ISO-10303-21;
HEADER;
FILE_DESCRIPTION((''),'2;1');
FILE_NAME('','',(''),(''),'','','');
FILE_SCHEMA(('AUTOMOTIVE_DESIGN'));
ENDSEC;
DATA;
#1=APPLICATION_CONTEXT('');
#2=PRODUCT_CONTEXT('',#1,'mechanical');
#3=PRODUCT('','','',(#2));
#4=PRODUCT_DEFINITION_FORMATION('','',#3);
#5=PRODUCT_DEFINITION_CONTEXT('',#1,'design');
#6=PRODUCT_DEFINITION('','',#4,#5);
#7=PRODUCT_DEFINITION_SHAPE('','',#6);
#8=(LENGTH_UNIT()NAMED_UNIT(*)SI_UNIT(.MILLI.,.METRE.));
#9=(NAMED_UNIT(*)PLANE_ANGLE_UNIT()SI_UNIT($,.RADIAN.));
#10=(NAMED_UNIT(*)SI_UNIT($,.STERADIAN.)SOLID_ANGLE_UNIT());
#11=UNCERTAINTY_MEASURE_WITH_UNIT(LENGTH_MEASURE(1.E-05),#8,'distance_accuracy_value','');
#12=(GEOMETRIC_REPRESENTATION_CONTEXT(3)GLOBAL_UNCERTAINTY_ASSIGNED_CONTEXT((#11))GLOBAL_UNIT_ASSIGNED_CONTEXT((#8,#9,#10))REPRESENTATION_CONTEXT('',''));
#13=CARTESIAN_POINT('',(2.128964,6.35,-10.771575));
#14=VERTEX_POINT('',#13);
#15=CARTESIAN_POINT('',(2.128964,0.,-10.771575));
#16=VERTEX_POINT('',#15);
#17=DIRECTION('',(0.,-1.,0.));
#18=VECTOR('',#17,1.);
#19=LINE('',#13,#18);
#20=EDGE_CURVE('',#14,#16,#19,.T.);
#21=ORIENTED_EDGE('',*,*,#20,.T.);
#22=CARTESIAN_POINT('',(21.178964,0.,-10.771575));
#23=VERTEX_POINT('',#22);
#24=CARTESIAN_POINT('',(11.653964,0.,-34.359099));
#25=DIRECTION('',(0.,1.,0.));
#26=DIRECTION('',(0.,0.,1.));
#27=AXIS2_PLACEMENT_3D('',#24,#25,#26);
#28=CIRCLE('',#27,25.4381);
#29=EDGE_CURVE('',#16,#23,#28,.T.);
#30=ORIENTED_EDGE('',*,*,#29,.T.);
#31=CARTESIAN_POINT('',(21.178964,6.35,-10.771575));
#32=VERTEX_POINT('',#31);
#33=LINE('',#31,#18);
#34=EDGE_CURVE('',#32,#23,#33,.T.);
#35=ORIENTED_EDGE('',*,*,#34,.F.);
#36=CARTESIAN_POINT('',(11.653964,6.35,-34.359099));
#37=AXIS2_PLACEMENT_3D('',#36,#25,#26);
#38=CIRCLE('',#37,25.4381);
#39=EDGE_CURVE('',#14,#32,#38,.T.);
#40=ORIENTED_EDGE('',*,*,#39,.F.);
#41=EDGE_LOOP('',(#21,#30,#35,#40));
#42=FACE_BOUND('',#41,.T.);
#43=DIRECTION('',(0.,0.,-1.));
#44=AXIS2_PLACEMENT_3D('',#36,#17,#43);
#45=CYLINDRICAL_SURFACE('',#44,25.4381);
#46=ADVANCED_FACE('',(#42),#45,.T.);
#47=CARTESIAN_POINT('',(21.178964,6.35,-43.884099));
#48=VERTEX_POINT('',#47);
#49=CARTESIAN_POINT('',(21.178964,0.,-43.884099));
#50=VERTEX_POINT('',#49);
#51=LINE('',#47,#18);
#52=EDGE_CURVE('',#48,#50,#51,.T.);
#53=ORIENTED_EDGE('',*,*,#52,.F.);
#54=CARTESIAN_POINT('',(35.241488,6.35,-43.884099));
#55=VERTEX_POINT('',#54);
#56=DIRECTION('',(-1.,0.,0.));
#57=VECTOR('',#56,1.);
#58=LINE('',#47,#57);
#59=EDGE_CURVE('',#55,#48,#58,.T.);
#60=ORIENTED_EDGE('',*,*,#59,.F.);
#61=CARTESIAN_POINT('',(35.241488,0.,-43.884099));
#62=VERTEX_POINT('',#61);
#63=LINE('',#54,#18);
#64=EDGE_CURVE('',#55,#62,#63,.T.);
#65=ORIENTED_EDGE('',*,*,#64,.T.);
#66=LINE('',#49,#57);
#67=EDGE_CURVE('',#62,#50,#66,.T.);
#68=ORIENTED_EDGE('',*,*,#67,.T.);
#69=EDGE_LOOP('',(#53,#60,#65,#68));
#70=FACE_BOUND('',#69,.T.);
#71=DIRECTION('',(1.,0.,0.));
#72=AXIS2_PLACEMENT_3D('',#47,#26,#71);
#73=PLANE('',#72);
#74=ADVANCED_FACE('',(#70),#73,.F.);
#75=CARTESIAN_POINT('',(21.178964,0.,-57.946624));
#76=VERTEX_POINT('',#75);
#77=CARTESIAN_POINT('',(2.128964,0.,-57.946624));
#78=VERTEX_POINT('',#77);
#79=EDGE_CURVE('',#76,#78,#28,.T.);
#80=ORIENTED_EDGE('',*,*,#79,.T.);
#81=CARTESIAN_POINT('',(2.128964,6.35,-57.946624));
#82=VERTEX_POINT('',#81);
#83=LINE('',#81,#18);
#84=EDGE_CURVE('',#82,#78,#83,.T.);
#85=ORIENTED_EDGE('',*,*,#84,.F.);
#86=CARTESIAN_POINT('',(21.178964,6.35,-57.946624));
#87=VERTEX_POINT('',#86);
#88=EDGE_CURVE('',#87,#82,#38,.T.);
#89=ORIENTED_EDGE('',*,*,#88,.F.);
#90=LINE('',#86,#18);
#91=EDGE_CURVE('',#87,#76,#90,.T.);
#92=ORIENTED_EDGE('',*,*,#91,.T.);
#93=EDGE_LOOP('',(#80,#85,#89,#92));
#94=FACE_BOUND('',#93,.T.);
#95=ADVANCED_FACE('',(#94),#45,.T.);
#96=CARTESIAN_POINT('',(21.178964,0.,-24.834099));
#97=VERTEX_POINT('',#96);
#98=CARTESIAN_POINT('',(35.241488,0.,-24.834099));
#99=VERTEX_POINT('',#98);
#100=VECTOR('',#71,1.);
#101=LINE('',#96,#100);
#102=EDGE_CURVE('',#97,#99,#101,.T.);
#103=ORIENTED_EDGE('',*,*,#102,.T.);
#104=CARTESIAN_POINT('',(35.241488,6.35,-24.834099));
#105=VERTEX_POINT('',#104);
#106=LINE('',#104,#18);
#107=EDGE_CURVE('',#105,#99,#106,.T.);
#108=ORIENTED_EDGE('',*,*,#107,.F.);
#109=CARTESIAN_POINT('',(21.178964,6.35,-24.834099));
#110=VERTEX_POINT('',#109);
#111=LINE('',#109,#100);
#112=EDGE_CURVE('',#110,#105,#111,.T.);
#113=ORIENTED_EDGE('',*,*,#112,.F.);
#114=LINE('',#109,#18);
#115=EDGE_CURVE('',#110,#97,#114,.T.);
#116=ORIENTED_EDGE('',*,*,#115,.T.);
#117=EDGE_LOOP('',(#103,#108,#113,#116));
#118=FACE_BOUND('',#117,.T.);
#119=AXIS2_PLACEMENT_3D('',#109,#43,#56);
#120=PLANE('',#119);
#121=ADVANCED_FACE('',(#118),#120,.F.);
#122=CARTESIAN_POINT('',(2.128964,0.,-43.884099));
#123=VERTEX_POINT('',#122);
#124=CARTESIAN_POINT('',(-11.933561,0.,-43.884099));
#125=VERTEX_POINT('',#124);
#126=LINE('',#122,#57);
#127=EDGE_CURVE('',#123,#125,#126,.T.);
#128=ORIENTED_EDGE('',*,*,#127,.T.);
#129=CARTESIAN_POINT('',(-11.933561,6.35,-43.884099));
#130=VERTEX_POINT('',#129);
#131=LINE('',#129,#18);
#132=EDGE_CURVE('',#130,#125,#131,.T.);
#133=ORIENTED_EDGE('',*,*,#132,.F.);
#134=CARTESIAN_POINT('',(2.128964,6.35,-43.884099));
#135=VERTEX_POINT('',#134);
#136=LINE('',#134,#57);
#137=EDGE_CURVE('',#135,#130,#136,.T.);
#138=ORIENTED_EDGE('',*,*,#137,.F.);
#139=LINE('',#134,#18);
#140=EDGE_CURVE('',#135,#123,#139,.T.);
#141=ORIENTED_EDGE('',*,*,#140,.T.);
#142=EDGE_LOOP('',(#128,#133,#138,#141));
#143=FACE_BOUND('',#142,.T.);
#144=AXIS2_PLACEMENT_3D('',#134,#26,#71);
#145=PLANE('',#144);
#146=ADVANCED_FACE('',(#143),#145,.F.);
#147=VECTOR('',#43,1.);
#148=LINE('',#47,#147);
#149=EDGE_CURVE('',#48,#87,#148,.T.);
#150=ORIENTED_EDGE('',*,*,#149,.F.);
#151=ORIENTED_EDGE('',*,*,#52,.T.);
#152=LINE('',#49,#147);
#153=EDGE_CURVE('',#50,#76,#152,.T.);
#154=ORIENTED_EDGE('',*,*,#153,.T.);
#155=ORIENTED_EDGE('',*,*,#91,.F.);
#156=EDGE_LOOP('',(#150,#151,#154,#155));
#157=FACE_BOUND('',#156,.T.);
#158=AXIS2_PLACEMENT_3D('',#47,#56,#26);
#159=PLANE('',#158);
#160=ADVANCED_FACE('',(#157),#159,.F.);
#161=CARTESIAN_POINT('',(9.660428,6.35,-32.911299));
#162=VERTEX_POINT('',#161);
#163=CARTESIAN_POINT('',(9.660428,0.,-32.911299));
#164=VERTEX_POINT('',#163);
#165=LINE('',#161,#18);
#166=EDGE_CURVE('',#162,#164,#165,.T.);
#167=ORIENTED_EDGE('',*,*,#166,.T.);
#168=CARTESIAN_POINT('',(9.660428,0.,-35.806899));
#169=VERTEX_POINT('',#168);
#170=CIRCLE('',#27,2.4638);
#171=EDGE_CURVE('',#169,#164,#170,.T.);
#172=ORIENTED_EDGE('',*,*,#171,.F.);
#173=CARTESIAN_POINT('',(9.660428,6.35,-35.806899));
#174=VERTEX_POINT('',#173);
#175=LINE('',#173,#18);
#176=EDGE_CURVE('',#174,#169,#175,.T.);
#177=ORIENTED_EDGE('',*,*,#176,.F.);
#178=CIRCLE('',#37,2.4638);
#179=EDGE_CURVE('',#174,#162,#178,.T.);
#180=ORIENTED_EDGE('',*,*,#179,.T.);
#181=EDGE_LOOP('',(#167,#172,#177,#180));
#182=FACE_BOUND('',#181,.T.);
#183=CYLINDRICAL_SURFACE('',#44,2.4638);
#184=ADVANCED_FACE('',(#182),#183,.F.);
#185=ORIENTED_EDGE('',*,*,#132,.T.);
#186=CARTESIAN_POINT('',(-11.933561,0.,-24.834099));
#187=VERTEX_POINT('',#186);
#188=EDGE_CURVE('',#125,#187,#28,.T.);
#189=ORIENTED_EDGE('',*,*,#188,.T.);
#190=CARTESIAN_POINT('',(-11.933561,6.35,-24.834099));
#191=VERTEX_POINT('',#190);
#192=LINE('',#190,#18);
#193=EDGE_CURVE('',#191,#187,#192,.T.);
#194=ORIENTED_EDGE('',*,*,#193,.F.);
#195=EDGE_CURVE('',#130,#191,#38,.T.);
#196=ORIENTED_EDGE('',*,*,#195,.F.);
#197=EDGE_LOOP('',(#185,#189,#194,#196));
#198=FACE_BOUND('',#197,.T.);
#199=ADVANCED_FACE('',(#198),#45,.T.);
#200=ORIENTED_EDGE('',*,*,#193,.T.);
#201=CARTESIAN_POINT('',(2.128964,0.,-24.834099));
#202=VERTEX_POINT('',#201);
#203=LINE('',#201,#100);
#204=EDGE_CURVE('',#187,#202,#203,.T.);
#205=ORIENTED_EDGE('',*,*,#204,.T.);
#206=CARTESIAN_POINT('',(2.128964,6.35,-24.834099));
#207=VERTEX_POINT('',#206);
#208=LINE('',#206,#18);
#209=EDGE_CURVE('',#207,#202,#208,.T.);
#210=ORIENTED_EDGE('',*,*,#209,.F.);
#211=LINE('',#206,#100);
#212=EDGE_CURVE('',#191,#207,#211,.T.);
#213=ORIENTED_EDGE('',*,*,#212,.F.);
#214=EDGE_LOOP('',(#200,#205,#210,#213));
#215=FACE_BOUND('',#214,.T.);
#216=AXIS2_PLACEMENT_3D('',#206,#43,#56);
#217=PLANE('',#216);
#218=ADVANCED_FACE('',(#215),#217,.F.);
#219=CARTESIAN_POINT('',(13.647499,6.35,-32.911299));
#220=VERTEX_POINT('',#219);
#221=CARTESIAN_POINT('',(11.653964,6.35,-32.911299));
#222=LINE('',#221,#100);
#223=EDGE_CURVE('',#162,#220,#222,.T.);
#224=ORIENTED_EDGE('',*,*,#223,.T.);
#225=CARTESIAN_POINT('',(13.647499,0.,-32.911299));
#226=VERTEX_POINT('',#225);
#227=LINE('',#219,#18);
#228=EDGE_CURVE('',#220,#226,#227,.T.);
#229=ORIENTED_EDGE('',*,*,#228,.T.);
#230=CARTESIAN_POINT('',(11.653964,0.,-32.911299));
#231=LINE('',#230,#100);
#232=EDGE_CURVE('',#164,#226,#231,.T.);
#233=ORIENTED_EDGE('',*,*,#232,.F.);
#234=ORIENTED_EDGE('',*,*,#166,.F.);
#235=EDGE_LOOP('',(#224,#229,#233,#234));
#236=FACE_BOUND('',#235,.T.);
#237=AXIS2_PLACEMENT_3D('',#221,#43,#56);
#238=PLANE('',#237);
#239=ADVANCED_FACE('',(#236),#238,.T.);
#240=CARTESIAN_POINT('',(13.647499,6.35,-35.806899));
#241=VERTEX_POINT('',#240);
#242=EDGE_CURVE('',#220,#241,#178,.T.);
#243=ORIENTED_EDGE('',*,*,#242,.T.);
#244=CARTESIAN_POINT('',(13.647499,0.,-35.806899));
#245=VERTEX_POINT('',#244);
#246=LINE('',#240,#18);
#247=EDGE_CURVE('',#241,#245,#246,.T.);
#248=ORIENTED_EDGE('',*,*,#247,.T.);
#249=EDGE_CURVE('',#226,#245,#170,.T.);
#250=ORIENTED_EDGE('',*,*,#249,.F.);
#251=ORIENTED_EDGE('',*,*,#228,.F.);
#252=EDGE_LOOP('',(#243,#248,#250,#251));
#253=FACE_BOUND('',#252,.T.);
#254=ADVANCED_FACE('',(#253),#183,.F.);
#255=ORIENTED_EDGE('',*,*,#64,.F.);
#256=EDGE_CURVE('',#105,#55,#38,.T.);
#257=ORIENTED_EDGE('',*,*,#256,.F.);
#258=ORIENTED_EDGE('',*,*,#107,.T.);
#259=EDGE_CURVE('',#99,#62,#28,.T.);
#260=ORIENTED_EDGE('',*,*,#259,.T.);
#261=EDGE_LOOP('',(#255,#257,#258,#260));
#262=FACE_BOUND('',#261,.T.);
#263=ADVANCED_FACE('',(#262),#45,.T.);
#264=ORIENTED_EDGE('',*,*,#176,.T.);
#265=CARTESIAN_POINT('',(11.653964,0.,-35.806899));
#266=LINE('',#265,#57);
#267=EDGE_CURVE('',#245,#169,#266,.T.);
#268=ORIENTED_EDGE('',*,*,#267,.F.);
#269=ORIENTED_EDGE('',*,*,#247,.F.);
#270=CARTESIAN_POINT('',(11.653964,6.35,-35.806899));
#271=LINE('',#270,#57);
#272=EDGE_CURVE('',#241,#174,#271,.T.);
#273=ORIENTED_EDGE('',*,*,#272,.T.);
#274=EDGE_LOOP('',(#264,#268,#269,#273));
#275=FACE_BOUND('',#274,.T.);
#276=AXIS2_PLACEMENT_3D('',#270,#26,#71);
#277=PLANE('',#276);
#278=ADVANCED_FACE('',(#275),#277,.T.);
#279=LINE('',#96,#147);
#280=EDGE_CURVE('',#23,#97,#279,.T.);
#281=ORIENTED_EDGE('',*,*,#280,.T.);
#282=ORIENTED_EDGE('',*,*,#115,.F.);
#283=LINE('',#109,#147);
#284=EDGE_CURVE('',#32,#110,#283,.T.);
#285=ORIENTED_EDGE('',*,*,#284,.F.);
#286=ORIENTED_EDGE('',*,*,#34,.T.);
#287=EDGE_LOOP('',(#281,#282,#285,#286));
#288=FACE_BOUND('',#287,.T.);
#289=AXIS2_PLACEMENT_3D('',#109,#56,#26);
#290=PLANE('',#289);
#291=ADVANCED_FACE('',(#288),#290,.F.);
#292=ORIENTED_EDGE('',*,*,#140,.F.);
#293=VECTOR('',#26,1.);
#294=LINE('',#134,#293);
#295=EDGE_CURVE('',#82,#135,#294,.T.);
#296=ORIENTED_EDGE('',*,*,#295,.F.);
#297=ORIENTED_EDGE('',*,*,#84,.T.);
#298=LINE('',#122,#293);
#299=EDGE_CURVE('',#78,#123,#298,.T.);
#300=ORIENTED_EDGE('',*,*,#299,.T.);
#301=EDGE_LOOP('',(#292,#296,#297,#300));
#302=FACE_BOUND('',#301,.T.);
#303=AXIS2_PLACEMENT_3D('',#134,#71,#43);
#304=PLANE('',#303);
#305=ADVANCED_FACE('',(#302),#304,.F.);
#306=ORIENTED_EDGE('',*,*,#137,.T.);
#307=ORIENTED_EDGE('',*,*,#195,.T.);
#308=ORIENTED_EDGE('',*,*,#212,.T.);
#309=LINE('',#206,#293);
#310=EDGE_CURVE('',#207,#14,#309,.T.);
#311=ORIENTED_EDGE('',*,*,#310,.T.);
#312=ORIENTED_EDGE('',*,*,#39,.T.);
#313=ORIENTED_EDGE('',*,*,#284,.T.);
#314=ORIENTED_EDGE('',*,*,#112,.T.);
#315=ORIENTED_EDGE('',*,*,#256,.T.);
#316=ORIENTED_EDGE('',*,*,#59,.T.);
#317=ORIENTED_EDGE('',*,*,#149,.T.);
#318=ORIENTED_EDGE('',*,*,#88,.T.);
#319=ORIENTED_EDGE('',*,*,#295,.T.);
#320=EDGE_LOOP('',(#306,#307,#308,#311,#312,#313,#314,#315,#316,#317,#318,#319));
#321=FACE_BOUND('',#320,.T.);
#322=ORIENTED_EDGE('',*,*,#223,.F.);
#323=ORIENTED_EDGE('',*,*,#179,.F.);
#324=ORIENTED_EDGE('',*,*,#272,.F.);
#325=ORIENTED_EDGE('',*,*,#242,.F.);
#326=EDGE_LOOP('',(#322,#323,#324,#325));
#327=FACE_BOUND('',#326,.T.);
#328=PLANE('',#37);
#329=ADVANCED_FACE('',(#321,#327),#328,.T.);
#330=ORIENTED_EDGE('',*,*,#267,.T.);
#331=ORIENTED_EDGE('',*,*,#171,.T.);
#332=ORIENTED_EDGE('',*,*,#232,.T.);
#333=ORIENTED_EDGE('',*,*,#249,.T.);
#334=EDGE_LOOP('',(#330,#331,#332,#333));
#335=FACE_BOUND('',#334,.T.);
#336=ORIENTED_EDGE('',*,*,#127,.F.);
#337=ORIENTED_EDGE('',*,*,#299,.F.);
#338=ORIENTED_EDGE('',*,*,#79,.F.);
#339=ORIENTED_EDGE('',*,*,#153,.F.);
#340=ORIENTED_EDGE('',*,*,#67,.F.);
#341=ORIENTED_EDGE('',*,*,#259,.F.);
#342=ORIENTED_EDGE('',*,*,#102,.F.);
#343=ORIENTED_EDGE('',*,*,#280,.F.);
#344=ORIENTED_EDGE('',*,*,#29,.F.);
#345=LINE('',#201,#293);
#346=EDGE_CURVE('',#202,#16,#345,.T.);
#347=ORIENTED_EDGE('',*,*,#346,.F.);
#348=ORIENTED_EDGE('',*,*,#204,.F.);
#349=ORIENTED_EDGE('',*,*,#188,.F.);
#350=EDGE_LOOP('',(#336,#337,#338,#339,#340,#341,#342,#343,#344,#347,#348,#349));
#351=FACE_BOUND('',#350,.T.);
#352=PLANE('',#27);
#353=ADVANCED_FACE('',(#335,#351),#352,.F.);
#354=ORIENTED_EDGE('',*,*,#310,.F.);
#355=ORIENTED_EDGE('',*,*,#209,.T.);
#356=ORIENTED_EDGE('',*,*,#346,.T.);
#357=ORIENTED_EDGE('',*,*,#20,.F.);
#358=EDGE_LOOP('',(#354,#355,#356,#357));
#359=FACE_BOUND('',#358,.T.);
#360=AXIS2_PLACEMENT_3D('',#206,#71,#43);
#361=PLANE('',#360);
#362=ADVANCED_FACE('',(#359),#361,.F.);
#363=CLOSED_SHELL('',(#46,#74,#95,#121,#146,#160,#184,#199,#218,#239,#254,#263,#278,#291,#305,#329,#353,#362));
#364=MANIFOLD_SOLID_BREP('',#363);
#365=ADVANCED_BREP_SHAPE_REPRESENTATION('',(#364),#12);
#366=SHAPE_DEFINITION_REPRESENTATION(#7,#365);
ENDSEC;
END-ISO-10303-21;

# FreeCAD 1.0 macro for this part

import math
import FreeCAD as App
import Part
import Sketcher
Q = App.Units.Quantity

doc = App.newDocument("Part")
body = doc.addObject("PartDesign::Body", "Body")

sketch1 = body.newObject("Sketcher::SketchObject", "Sketch")
sketch1.AttachmentSupport = (doc.getObject("XZ_Plane"), [""])
sketch1.MapMode = "FlatFace"
sketch1.addGeometry([
    Part.LineSegment(App.Vector(2.1, -57.9, 0), App.Vector(2.1, -43.9, 0)),
    Part.LineSegment(App.Vector(2.1, -43.9, 0), App.Vector(-11.9, -43.9, 0)),
    Part.ArcOfCircle(Part.Circle(App.Vector(11.7, -34.4, 0), App.Vector(0, 0, 1), 25.4), math.radians(158), math.radians(202)),
    Part.LineSegment(App.Vector(-11.9, -24.8, 0), App.Vector(2.1, -24.8, 0)),
    Part.LineSegment(App.Vector(2.1, -24.8, 0), App.Vector(2.1, -10.8, 0)),
    Part.ArcOfCircle(Part.Circle(App.Vector(11.7, -34.4, 0), App.Vector(0, 0, 1), 25.4), math.radians(68), math.radians(112)),
    Part.LineSegment(App.Vector(21.2, -10.8, 0), App.Vector(21.2, -24.8, 0)),
    Part.LineSegment(App.Vector(21.2, -24.8, 0), App.Vector(35.2, -24.8, 0)),
    Part.ArcOfCircle(Part.Circle(App.Vector(11.7, -34.4, 0), App.Vector(0, 0, 1), 25.4), math.radians(-22), math.radians(22)),
    Part.LineSegment(App.Vector(35.2, -43.9, 0), App.Vector(21.2, -43.9, 0)),
    Part.LineSegment(App.Vector(21.2, -43.9, 0), App.Vector(21.2, -57.9, 0)),
    Part.ArcOfCircle(Part.Circle(App.Vector(11.7, -34.4, 0), App.Vector(0, 0, 1), 25.4), math.radians(-112), math.radians(-68)),
    Part.ArcOfCircle(Part.Circle(App.Vector(11.7, -34.4, 0), App.Vector(0, 0, 1), 2.5), math.radians(-36), math.radians(36)),
    Part.LineSegment(App.Vector(13.6, -32.9, 0), App.Vector(9.7, -32.9, 0)),
    Part.ArcOfCircle(Part.Circle(App.Vector(11.7, -34.4, 0), App.Vector(0, 0, 1), 2.5), math.radians(144), math.radians(216)),
    Part.LineSegment(App.Vector(9.7, -35.8, 0), App.Vector(13.6, -35.8, 0)),
], False)
sketch1.addConstraint([
    Sketcher.Constraint("Coincident", 0, 2, 1, 1),
    Sketcher.Constraint("Coincident", 1, 2, 2, 2),
    Sketcher.Constraint("Coincident", 2, 1, 3, 1),
    Sketcher.Constraint("Coincident", 3, 2, 4, 1),
    Sketcher.Constraint("Coincident", 4, 2, 5, 2),
    Sketcher.Constraint("Coincident", 5, 1, 6, 1),
    Sketcher.Constraint("Coincident", 6, 2, 7, 1),
    Sketcher.Constraint("Coincident", 7, 2, 8, 2),
    Sketcher.Constraint("Coincident", 8, 1, 9, 1),
    Sketcher.Constraint("Coincident", 9, 2, 10, 1),
    Sketcher.Constraint("Coincident", 10, 2, 11, 2),
    Sketcher.Constraint("Coincident", 11, 1, 0, 1),
    Sketcher.Constraint("Coincident", 12, 2, 13, 1),
    Sketcher.Constraint("Coincident", 13, 2, 14, 1),
    Sketcher.Constraint("Coincident", 14, 2, 15, 1),
    Sketcher.Constraint("Coincident", 15, 2, 12, 1),
    Sketcher.Constraint("Vertical", 0),
    Sketcher.Constraint("Horizontal", 1),
    Sketcher.Constraint("Horizontal", 3),
    Sketcher.Constraint("Vertical", 4),
    Sketcher.Constraint("Vertical", 6),
    Sketcher.Constraint("Horizontal", 7),
    Sketcher.Constraint("Horizontal", 9),
    Sketcher.Constraint("Vertical", 10),
    Sketcher.Constraint("Horizontal", 13),
    Sketcher.Constraint("Horizontal", 15),
    Sketcher.Constraint("Coincident", 5, 3, 2, 3),
    Sketcher.Constraint("Coincident", 8, 3, 2, 3),
    Sketcher.Constraint("Coincident", 11, 3, 2, 3),
    Sketcher.Constraint("Coincident", 12, 3, 2, 3),
    Sketcher.Constraint("Coincident", 14, 3, 2, 3),
    Sketcher.Constraint("Equal", 2, 5),
    Sketcher.Constraint("Equal", 5, 8),
    Sketcher.Constraint("Equal", 8, 11),
    Sketcher.Constraint("Equal", 12, 14),
    Sketcher.Constraint("Horizontal", 4, 2, 5, 1),
    Sketcher.Constraint("Horizontal", 3, 2, 6, 2),
    Sketcher.Constraint("Horizontal", 1, 2, 8, 1),
    Sketcher.Constraint("Horizontal", 10, 2, 11, 1),
    Sketcher.Constraint("Vertical", 1, 2, 2, 1),
    Sketcher.Constraint("Vertical", 0, 2, 3, 2),
    Sketcher.Constraint("Vertical", 13, 2, 14, 2),
    Sketcher.Constraint("Equal", 9, 0),
    Sketcher.Constraint("Radius", 12, Q("0.097 in")),
    Sketcher.Constraint("Radius", 2, Q("1.0015 in")),
    Sketcher.Constraint("DistanceY", 1, 2, 2, 1, Q("0.75 in")),
    Sketcher.Constraint("DistanceY", 2, 3, 12, 2, Q("0.057 in")),
    Sketcher.Constraint("DistanceY", 2, 3, -1, 1, Q("34.359099 mm")),
    Sketcher.Constraint("DistanceX", -1, 1, 12, 2, Q("13.647499 mm")),
])
pad1 = body.newObject("PartDesign::Pad", "Pad")
pad1.Profile = sketch1
pad1.Length = Q("0.25 in")
pad1.Reversed = True

doc.recompute()
